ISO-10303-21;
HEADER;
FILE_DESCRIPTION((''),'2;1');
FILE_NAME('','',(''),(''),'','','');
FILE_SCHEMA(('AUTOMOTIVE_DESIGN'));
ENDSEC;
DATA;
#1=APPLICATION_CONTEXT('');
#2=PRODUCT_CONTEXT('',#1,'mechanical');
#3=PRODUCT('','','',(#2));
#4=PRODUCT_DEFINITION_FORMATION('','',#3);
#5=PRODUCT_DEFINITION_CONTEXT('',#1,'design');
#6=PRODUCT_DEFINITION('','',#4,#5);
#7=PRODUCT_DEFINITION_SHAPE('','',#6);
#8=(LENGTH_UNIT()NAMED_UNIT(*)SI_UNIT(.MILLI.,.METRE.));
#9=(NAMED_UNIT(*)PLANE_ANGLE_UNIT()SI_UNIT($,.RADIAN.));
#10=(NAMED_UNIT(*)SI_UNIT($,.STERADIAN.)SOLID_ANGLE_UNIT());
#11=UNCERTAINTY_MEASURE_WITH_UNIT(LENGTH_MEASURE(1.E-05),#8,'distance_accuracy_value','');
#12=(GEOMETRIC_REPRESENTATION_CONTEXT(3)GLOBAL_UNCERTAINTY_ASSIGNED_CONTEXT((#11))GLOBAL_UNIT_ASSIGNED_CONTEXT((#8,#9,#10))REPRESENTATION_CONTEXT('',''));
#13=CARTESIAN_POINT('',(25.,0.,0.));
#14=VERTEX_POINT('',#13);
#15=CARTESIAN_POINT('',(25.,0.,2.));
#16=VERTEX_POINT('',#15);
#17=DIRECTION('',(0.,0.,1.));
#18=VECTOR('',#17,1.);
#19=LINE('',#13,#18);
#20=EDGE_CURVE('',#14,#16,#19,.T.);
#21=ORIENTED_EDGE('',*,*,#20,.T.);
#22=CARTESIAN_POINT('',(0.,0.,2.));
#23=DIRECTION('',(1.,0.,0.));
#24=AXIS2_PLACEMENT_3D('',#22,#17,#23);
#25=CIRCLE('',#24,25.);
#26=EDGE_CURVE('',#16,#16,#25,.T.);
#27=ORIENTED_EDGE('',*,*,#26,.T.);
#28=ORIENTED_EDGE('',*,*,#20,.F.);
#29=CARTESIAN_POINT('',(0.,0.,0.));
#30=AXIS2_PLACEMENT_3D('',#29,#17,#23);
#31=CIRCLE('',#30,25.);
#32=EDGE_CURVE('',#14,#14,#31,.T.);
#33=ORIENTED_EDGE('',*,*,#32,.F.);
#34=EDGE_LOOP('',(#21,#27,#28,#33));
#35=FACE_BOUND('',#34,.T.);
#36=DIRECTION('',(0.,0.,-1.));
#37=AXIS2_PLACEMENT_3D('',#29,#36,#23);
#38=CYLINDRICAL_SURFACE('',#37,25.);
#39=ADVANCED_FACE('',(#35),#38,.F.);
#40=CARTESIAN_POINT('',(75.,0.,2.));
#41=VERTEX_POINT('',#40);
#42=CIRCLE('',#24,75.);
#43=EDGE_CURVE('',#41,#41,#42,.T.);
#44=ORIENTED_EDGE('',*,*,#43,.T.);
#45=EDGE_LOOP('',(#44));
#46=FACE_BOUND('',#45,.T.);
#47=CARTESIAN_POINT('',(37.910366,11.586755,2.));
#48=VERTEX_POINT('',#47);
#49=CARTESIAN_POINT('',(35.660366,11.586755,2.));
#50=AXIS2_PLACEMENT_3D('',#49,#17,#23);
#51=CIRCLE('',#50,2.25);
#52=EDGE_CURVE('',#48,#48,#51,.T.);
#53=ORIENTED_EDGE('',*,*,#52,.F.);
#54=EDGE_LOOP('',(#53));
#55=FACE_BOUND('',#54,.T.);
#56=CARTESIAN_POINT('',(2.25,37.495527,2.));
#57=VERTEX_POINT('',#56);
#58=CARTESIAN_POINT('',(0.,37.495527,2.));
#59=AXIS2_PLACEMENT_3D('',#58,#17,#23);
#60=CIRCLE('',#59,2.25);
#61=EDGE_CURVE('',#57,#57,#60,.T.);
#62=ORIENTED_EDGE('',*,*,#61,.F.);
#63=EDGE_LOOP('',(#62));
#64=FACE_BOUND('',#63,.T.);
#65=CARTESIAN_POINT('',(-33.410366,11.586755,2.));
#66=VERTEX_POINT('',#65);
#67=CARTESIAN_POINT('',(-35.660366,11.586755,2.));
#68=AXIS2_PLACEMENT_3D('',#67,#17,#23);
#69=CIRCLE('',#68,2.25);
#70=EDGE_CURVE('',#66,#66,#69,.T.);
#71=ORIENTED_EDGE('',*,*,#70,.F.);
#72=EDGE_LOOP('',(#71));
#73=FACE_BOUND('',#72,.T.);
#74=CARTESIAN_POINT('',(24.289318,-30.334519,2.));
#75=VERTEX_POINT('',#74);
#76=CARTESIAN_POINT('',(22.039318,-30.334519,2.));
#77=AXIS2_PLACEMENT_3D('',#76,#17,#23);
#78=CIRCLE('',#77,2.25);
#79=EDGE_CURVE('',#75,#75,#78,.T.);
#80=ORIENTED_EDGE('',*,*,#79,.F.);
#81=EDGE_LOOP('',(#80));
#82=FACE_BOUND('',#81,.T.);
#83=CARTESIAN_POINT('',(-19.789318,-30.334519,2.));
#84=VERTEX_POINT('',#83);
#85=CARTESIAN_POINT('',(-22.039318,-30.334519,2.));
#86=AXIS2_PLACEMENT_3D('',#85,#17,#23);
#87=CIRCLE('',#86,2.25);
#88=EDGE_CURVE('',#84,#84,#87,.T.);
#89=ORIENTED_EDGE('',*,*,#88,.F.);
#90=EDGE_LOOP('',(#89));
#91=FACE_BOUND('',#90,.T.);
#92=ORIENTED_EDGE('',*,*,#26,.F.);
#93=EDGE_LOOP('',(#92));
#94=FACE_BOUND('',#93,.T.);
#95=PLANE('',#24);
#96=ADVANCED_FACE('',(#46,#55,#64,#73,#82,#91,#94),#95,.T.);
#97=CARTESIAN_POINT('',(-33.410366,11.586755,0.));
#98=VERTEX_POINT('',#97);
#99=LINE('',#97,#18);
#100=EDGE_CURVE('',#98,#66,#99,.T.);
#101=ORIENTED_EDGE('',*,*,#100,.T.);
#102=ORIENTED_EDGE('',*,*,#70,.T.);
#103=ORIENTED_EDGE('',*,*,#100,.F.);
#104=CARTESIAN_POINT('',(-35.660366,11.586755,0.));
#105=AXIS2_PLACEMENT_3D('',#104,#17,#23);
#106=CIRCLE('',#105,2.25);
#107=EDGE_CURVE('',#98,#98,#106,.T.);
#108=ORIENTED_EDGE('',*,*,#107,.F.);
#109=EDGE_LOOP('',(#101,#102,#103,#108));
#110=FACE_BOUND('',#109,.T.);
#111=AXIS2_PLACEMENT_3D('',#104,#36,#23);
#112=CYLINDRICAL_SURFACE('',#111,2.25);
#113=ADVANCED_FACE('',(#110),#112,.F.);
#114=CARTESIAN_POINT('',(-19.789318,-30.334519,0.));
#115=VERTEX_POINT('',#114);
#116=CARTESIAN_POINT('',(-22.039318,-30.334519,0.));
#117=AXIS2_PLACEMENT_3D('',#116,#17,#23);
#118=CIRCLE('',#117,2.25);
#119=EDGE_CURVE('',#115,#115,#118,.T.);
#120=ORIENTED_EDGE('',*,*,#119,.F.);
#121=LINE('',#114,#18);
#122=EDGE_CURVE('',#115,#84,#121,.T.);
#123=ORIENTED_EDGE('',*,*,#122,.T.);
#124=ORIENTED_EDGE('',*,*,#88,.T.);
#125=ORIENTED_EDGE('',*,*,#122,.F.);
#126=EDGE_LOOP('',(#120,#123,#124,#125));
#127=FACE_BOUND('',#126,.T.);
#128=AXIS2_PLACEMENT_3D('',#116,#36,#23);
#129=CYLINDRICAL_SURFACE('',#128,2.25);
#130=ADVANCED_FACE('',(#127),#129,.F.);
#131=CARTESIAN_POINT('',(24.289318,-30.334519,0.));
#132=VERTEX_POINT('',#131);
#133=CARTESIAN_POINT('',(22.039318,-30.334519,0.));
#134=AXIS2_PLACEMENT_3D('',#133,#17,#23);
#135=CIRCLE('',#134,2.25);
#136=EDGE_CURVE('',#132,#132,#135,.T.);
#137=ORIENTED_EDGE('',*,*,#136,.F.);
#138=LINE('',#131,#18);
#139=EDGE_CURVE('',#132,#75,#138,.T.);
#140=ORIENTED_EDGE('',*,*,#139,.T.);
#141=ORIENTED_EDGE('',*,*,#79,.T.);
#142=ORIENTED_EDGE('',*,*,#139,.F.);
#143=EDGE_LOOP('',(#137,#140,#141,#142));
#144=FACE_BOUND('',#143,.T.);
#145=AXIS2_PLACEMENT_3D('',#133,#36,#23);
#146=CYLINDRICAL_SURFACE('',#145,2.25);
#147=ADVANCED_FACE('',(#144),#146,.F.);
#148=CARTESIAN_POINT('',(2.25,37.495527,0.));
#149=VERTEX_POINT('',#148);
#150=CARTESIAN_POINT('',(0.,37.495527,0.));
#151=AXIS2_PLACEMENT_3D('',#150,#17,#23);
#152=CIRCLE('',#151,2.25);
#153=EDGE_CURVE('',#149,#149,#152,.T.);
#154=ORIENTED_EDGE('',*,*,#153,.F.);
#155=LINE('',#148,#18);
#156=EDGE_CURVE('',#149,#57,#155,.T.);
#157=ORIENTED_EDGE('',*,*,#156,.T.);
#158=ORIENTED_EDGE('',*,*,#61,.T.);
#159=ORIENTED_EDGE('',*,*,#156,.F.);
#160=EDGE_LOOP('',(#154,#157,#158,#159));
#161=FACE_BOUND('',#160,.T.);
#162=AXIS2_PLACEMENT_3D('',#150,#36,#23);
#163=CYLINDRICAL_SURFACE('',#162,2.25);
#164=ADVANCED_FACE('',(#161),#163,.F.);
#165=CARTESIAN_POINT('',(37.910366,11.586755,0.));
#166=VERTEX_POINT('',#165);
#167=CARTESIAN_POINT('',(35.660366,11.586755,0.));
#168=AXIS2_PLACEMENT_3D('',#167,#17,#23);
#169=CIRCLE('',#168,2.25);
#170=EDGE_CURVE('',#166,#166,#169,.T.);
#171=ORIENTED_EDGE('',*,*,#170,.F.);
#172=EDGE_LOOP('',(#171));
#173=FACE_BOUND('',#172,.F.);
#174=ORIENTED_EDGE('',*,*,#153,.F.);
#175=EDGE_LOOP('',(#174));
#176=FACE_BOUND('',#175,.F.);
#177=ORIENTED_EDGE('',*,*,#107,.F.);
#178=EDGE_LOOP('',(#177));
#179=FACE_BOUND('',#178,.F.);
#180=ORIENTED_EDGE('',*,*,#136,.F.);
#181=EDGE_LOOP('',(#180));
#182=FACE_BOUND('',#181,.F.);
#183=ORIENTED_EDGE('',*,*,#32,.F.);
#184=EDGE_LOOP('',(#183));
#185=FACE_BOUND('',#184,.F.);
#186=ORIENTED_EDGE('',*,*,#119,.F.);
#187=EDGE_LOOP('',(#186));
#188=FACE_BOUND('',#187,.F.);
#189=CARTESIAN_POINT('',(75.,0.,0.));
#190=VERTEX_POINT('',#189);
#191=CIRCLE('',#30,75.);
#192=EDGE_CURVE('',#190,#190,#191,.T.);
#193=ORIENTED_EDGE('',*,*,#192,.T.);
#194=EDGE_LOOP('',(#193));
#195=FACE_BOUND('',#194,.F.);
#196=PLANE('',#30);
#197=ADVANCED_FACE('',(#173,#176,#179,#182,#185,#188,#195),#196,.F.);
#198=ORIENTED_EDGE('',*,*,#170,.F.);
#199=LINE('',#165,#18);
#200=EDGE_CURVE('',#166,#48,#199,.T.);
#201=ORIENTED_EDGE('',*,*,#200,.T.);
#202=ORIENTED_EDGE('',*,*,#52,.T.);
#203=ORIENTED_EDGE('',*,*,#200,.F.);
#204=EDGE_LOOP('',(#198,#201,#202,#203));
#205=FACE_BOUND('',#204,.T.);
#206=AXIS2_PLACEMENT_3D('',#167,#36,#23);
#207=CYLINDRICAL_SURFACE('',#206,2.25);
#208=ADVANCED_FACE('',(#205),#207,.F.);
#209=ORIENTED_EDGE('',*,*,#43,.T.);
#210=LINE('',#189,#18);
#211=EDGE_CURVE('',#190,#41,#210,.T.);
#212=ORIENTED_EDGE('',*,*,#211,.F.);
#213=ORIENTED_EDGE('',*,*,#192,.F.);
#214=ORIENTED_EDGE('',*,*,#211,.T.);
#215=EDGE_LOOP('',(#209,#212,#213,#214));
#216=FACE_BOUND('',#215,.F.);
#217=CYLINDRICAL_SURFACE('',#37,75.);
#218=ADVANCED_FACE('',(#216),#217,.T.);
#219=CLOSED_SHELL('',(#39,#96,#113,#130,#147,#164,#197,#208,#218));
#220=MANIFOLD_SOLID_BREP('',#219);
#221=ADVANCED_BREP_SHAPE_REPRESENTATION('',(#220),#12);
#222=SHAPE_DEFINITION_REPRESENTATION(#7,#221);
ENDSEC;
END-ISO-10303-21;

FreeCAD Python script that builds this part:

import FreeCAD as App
import Part
import Sketcher

doc = App.newDocument("Part")
body = doc.addObject("PartDesign::Body", "Body")

# Sketch on XY plane
sketch1 = body.newObject("Sketcher::SketchObject", "Sketch")
sketch1.AttachmentSupport = (doc.getObject("XY_Plane"), [""])
sketch1.MapMode = "FlatFace"
sketch1.addGeometry([
    Part.Circle(App.Vector(0, 0, 0), App.Vector(0, 0, 1), 75),  # 0
    Part.Circle(App.Vector(-22.039318, -30.334519, 0), App.Vector(0, 0, 1), 2.25),  # 1
    Part.Circle(App.Vector(22.039318, -30.334519, 0), App.Vector(0, 0, 1), 2.25),  # 2
    Part.Circle(App.Vector(0, 0, 0), App.Vector(0, 0, 1), 25),  # 3
    Part.Circle(App.Vector(-35.660366, 11.586755, 0), App.Vector(0, 0, 1), 2.25),  # 4
    Part.Circle(App.Vector(35.660366, 11.586755, 0), App.Vector(0, 0, 1), 2.25),  # 5
    Part.Circle(App.Vector(0, 37.495527, 0), App.Vector(0, 0, 1), 2.25),  # 6
], False)
sketch1.addConstraint([
    Sketcher.Constraint("Coincident", 0, 3, -1, 1),
    Sketcher.Constraint("Coincident", 3, 3, -1, 1),
    Sketcher.Constraint("Equal", 1, 2),
    Sketcher.Constraint("Equal", 2, 4),
    Sketcher.Constraint("Equal", 4, 5),
    Sketcher.Constraint("Equal", 5, 6),
    Sketcher.Constraint("Symmetric", 1, 3, 2, 3, -2),
    Sketcher.Constraint("Symmetric", 4, 3, 5, 3, -2),
    Sketcher.Constraint("PointOnObject", 6, 3, -2),
    Sketcher.Constraint("Diameter", 0, 150.0),
    Sketcher.Constraint("Diameter", 3, 50.0),
    Sketcher.Constraint("Diameter", 1, 4.5),
    Sketcher.Constraint("DistanceX", 1, 3, -1, 1, 22.039318),
    Sketcher.Constraint("DistanceY", 1, 3, -1, 1, 30.334519),
    Sketcher.Constraint("DistanceX", 4, 3, 1, 3, 13.621048),
    Sketcher.Constraint("DistanceY", -1, 1, 4, 3, 11.586755),
    Sketcher.Constraint("DistanceY", -1, 1, 6, 3, 37.495527),
])
pad1 = body.newObject("PartDesign::Pad", "Pad")
pad1.Profile = sketch1
pad1.Length = 2

doc.recompute()
